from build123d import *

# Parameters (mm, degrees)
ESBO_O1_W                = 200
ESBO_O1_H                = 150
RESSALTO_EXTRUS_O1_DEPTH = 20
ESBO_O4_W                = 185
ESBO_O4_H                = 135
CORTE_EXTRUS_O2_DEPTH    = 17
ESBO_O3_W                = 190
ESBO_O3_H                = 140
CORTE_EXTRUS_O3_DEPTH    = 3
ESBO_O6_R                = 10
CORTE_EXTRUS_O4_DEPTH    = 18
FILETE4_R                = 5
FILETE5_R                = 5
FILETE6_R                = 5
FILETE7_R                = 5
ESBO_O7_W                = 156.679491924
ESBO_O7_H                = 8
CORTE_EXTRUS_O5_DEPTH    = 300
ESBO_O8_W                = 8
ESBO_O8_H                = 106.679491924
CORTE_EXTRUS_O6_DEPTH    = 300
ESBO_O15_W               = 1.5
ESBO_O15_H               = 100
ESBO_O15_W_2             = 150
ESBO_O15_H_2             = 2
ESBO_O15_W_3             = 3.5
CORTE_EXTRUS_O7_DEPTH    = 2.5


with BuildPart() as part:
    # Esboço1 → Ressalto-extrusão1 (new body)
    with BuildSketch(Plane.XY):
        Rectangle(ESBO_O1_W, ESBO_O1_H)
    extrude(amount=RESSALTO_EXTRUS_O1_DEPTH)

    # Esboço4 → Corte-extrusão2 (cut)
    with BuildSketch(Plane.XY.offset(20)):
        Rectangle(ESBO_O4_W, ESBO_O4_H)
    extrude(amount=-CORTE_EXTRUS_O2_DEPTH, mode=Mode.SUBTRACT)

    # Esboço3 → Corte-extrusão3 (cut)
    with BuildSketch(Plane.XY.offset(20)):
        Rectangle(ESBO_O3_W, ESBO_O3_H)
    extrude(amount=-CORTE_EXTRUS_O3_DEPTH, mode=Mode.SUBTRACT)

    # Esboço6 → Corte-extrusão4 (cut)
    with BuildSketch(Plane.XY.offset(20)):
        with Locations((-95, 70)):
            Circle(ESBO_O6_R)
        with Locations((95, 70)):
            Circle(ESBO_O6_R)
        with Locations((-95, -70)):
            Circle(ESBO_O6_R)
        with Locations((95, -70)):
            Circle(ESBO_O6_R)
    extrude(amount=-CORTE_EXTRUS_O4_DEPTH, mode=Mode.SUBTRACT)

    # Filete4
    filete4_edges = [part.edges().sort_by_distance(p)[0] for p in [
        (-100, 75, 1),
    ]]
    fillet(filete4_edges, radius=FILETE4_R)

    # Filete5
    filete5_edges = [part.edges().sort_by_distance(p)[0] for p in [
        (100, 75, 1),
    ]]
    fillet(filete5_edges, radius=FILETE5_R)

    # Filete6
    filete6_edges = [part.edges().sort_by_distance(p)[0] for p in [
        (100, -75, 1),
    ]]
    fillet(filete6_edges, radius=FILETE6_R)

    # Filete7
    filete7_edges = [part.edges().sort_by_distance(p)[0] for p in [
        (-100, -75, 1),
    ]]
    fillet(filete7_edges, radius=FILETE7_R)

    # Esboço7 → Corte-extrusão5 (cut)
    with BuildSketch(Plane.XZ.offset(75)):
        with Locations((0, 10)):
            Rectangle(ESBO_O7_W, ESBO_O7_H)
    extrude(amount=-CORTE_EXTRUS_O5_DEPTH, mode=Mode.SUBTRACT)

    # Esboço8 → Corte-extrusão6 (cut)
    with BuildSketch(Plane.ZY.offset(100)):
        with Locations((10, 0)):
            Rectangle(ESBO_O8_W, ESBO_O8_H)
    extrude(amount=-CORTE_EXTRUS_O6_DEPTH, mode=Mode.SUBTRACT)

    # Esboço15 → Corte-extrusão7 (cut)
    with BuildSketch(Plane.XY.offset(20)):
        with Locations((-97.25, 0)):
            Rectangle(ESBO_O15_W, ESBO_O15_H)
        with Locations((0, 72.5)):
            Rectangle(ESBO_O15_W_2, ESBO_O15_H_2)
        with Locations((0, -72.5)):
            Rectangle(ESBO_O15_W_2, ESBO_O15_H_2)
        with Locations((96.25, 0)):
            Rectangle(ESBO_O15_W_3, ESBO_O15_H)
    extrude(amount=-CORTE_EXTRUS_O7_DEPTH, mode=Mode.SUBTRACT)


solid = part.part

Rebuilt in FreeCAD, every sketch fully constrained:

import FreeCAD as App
import Part
import Sketcher
from FreeCAD import Vector
Q = App.Units.Quantity


def edges_at(feature, points):
    """Names of the edges that pass closest to the given points."""
    edges = feature.Shape.Edges
    near = lambda p: min(range(len(edges)), key=lambda i: edges[i].distToShape(Part.Vertex(*p))[0])
    return sorted({f"Edge{near(p) + 1}" for p in points})

doc = App.newDocument("Part")
body = doc.addObject("PartDesign::Body", "Body")

sketch1 = body.newObject("Sketcher::SketchObject", "Sketch")
sketch1.AttachmentSupport = (doc.getObject("XY_Plane"), [""])
sketch1.MapMode = "FlatFace"
sketch1.addGeometry(Part.LineSegment(Vector(-100, 75, 0), Vector(-100, -75, 0)), False)
sketch1.addGeometry(Part.LineSegment(Vector(-100, -75, 0), Vector(100, -75, 0)), False)
sketch1.addGeometry(Part.LineSegment(Vector(100, -75, 0), Vector(100, 75, 0)), False)
sketch1.addGeometry(Part.LineSegment(Vector(100, 75, 0), Vector(-100, 75, 0)), False)
sketch1.addConstraint(Sketcher.Constraint("Coincident", 0, 2, 1, 1))
sketch1.addConstraint(Sketcher.Constraint("Coincident", 1, 2, 2, 1))
sketch1.addConstraint(Sketcher.Constraint("Coincident", 2, 2, 3, 1))
sketch1.addConstraint(Sketcher.Constraint("Coincident", 3, 2, 0, 1))
sketch1.addConstraint(Sketcher.Constraint("Vertical", 0))
sketch1.addConstraint(Sketcher.Constraint("Horizontal", 1))
sketch1.addConstraint(Sketcher.Constraint("Vertical", 2))
sketch1.addConstraint(Sketcher.Constraint("Horizontal", 3))
sketch1.addConstraint(Sketcher.Constraint("Symmetric", 0, 2, 2, 2, -1, 1))
sketch1.addConstraint(Sketcher.Constraint("DistanceX", 1, 1, 1, 2, Q("200 mm")))
sketch1.addConstraint(Sketcher.Constraint("DistanceY", 0, 2, 0, 1, Q("150 mm")))
pad1 = body.newObject("PartDesign::Pad", "Pad")
pad1.Profile = sketch1
pad1.Length = 20

sketch2 = body.newObject("Sketcher::SketchObject", "Sketch001")
sketch2.AttachmentSupport = (doc.getObject("XY_Plane"), [""])
sketch2.MapMode = "FlatFace"
sketch2.AttachmentOffset = App.Placement(Vector(0, 0, 20), App.Rotation())
sketch2.addGeometry(Part.LineSegment(Vector(-92.5, 67.5, 0), Vector(-92.5, -67.5, 0)), False)
sketch2.addGeometry(Part.LineSegment(Vector(-92.5, -67.5, 0), Vector(92.5, -67.5, 0)), False)
sketch2.addGeometry(Part.LineSegment(Vector(92.5, -67.5, 0), Vector(92.5, 67.5, 0)), False)
sketch2.addGeometry(Part.LineSegment(Vector(92.5, 67.5, 0), Vector(-92.5, 67.5, 0)), False)
sketch2.addConstraint(Sketcher.Constraint("Coincident", 0, 2, 1, 1))
sketch2.addConstraint(Sketcher.Constraint("Coincident", 1, 2, 2, 1))
sketch2.addConstraint(Sketcher.Constraint("Coincident", 2, 2, 3, 1))
sketch2.addConstraint(Sketcher.Constraint("Coincident", 3, 2, 0, 1))
sketch2.addConstraint(Sketcher.Constraint("Vertical", 0))
sketch2.addConstraint(Sketcher.Constraint("Horizontal", 1))
sketch2.addConstraint(Sketcher.Constraint("Vertical", 2))
sketch2.addConstraint(Sketcher.Constraint("Horizontal", 3))
sketch2.addConstraint(Sketcher.Constraint("Symmetric", 0, 2, 2, 2, -1, 1))
sketch2.addConstraint(Sketcher.Constraint("DistanceX", 1, 1, 1, 2, Q("185 mm")))
sketch2.addConstraint(Sketcher.Constraint("DistanceY", 0, 2, 0, 1, Q("135 mm")))
pocket1 = body.newObject("PartDesign::Pocket", "Pocket")
pocket1.Profile = sketch2
pocket1.Length = 17

sketch3 = body.newObject("Sketcher::SketchObject", "Sketch002")
sketch3.AttachmentSupport = (doc.getObject("XY_Plane"), [""])
sketch3.MapMode = "FlatFace"
sketch3.AttachmentOffset = App.Placement(Vector(0, 0, 20), App.Rotation())
sketch3.addGeometry(Part.LineSegment(Vector(-95, 70, 0), Vector(-95, -70, 0)), False)
sketch3.addGeometry(Part.LineSegment(Vector(-95, -70, 0), Vector(95, -70, 0)), False)
sketch3.addGeometry(Part.LineSegment(Vector(95, -70, 0), Vector(95, 70, 0)), False)
sketch3.addGeometry(Part.LineSegment(Vector(95, 70, 0), Vector(-95, 70, 0)), False)
sketch3.addConstraint(Sketcher.Constraint("Coincident", 0, 2, 1, 1))
sketch3.addConstraint(Sketcher.Constraint("Coincident", 1, 2, 2, 1))
sketch3.addConstraint(Sketcher.Constraint("Coincident", 2, 2, 3, 1))
sketch3.addConstraint(Sketcher.Constraint("Coincident", 3, 2, 0, 1))
sketch3.addConstraint(Sketcher.Constraint("Vertical", 0))
sketch3.addConstraint(Sketcher.Constraint("Horizontal", 1))
sketch3.addConstraint(Sketcher.Constraint("Vertical", 2))
sketch3.addConstraint(Sketcher.Constraint("Horizontal", 3))
sketch3.addConstraint(Sketcher.Constraint("Symmetric", 0, 2, 2, 2, -1, 1))
sketch3.addConstraint(Sketcher.Constraint("DistanceX", 1, 1, 1, 2, Q("190 mm")))
sketch3.addConstraint(Sketcher.Constraint("DistanceY", 0, 2, 0, 1, Q("140 mm")))
pocket2 = body.newObject("PartDesign::Pocket", "Pocket001")
pocket2.Profile = sketch3
pocket2.Length = 3

sketch4 = body.newObject("Sketcher::SketchObject", "Sketch003")
sketch4.AttachmentSupport = (doc.getObject("XY_Plane"), [""])
sketch4.MapMode = "FlatFace"
sketch4.AttachmentOffset = App.Placement(Vector(0, 0, 20), App.Rotation())
sketch4.addGeometry(Part.Circle(Vector(-95, 70, 0), Vector(0, 0, 1), 10), False)
sketch4.addGeometry(Part.Circle(Vector(95, 70, 0), Vector(0, 0, 1), 10), False)
sketch4.addGeometry(Part.Circle(Vector(-95, -70, 0), Vector(0, 0, 1), 10), False)
sketch4.addGeometry(Part.Circle(Vector(95, -70, 0), Vector(0, 0, 1), 10), False)
sketch4.addConstraint(Sketcher.Constraint("Equal", 0, 1))
sketch4.addConstraint(Sketcher.Constraint("Equal", 1, 2))
sketch4.addConstraint(Sketcher.Constraint("Equal", 2, 3))
sketch4.addConstraint(Sketcher.Constraint("Symmetric", 1, 3, 2, 3, -1, 1))
sketch4.addConstraint(Sketcher.Constraint("Symmetric", 0, 3, 3, 3, -1, 1))
sketch4.addConstraint(Sketcher.Constraint("Symmetric", 0, 3, 1, 3, -2))
sketch4.addConstraint(Sketcher.Constraint("Diameter", 0, Q("20 mm")))
sketch4.addConstraint(Sketcher.Constraint("DistanceX", 0, 3, -1, 1, Q("95 mm")))
sketch4.addConstraint(Sketcher.Constraint("DistanceY", -1, 1, 0, 3, Q("70 mm")))
pocket3 = body.newObject("PartDesign::Pocket", "Pocket002")
pocket3.Profile = sketch4
pocket3.Length = 18
doc.recompute()

fillet = body.newObject("PartDesign::Fillet", "Fillet")
fillet.Base = (pocket3, edges_at(pocket3, [(-100, 75, 1)]))
fillet.Radius = 5
doc.recompute()

fillet2 = body.newObject("PartDesign::Fillet", "Fillet001")
fillet2.Base = (fillet, edges_at(fillet, [(100, 75, 1)]))
fillet2.Radius = 5
doc.recompute()

fillet3 = body.newObject("PartDesign::Fillet", "Fillet002")
fillet3.Base = (fillet2, edges_at(fillet2, [(100, -75, 1)]))
fillet3.Radius = 5
doc.recompute()

fillet4 = body.newObject("PartDesign::Fillet", "Fillet003")
fillet4.Base = (fillet3, edges_at(fillet3, [(-100, -75, 1)]))
fillet4.Radius = 5

sketch5 = body.newObject("Sketcher::SketchObject", "Sketch004")
sketch5.AttachmentSupport = (doc.getObject("XZ_Plane"), [""])
sketch5.MapMode = "FlatFace"
sketch5.AttachmentOffset = App.Placement(Vector(0, 0, 75), App.Rotation())
sketch5.addGeometry(Part.LineSegment(Vector(-78.339746, 14, 0), Vector(-78.339746, 6, 0)), False)
sketch5.addGeometry(Part.LineSegment(Vector(-78.339746, 6, 0), Vector(78.339746, 6, 0)), False)
sketch5.addGeometry(Part.LineSegment(Vector(78.339746, 6, 0), Vector(78.339746, 14, 0)), False)
sketch5.addGeometry(Part.LineSegment(Vector(78.339746, 14, 0), Vector(-78.339746, 14, 0)), False)
sketch5.addConstraint(Sketcher.Constraint("Coincident", 0, 2, 1, 1))
sketch5.addConstraint(Sketcher.Constraint("Coincident", 1, 2, 2, 1))
sketch5.addConstraint(Sketcher.Constraint("Coincident", 2, 2, 3, 1))
sketch5.addConstraint(Sketcher.Constraint("Coincident", 3, 2, 0, 1))
sketch5.addConstraint(Sketcher.Constraint("Vertical", 0))
sketch5.addConstraint(Sketcher.Constraint("Horizontal", 1))
sketch5.addConstraint(Sketcher.Constraint("Vertical", 2))
sketch5.addConstraint(Sketcher.Constraint("Horizontal", 3))
sketch5.addConstraint(Sketcher.Constraint("DistanceY", 0, 2, 0, 1, Q("8 mm")))
sketch5.addConstraint(Sketcher.Constraint("DistanceY", -1, 1, 0, 2, Q("6 mm")))
sketch5.addConstraint(Sketcher.Constraint("DistanceX", 1, 1, 1, 2, Q("156.679492 mm")))
sketch5.addConstraint(Sketcher.Constraint("DistanceX", 0, 2, -1, 1, Q("78.339746 mm")))
pocket4 = body.newObject("PartDesign::Pocket", "Pocket003")
pocket4.Profile = sketch5
pocket4.Length = 300

sketch6 = body.newObject("Sketcher::SketchObject", "Sketch005")
sketch6.AttachmentSupport = (doc.getObject("YZ_Plane"), [""])
sketch6.MapMode = "FlatFace"
sketch6.AttachmentOffset = App.Placement(Vector(0, 0, -100), App.Rotation())
sketch6.addGeometry(Part.LineSegment(Vector(53.339746, 6, 0), Vector(-53.339746, 6, 0)), False)
sketch6.addGeometry(Part.LineSegment(Vector(-53.339746, 6, 0), Vector(-53.339746, 14, 0)), False)
sketch6.addGeometry(Part.LineSegment(Vector(-53.339746, 14, 0), Vector(53.339746, 14, 0)), False)
sketch6.addGeometry(Part.LineSegment(Vector(53.339746, 14, 0), Vector(53.339746, 6, 0)), False)
sketch6.addConstraint(Sketcher.Constraint("Coincident", 0, 2, 1, 1))
sketch6.addConstraint(Sketcher.Constraint("Coincident", 1, 2, 2, 1))
sketch6.addConstraint(Sketcher.Constraint("Coincident", 2, 2, 3, 1))
sketch6.addConstraint(Sketcher.Constraint("Coincident", 3, 2, 0, 1))
sketch6.addConstraint(Sketcher.Constraint("Horizontal", 0))
sketch6.addConstraint(Sketcher.Constraint("Vertical", 1))
sketch6.addConstraint(Sketcher.Constraint("Horizontal", 2))
sketch6.addConstraint(Sketcher.Constraint("Vertical", 3))
sketch6.addConstraint(Sketcher.Constraint("DistanceY", 1, 1, 1, 2, Q("8 mm")))
sketch6.addConstraint(Sketcher.Constraint("DistanceY", -1, 1, 0, 2, Q("6 mm")))
sketch6.addConstraint(Sketcher.Constraint("DistanceX", 0, 2, 0, 1, Q("106.679492 mm")))
sketch6.addConstraint(Sketcher.Constraint("DistanceX", 0, 2, -1, 1, Q("53.339746 mm")))
pocket5 = body.newObject("PartDesign::Pocket", "Pocket004")
pocket5.Profile = sketch6
pocket5.Length = 300
pocket5.Reversed = True

sketch7 = body.newObject("Sketcher::SketchObject", "Sketch006")
sketch7.AttachmentSupport = (doc.getObject("XY_Plane"), [""])
sketch7.MapMode = "FlatFace"
sketch7.AttachmentOffset = App.Placement(Vector(0, 0, 20), App.Rotation())
sketch7.addGeometry(Part.LineSegment(Vector(-98, 50, 0), Vector(-98, -50, 0)), False)
sketch7.addGeometry(Part.LineSegment(Vector(-98, -50, 0), Vector(-96.5, -50, 0)), False)
sketch7.addGeometry(Part.LineSegment(Vector(-96.5, -50, 0), Vector(-96.5, 50, 0)), False)
sketch7.addGeometry(Part.LineSegment(Vector(-96.5, 50, 0), Vector(-98, 50, 0)), False)
sketch7.addGeometry(Part.LineSegment(Vector(-75, 73.5, 0), Vector(-75, 71.5, 0)), False)
sketch7.addGeometry(Part.LineSegment(Vector(-75, 71.5, 0), Vector(75, 71.5, 0)), False)
sketch7.addGeometry(Part.LineSegment(Vector(75, 71.5, 0), Vector(75, 73.5, 0)), False)
sketch7.addGeometry(Part.LineSegment(Vector(75, 73.5, 0), Vector(-75, 73.5, 0)), False)
sketch7.addGeometry(Part.LineSegment(Vector(-75, -71.5, 0), Vector(-75, -73.5, 0)), False)
sketch7.addGeometry(Part.LineSegment(Vector(-75, -73.5, 0), Vector(75, -73.5, 0)), False)
sketch7.addGeometry(Part.LineSegment(Vector(75, -73.5, 0), Vector(75, -71.5, 0)), False)
sketch7.addGeometry(Part.LineSegment(Vector(75, -71.5, 0), Vector(-75, -71.5, 0)), False)
sketch7.addGeometry(Part.LineSegment(Vector(94.5, 50, 0), Vector(94.5, -50, 0)), False)
sketch7.addGeometry(Part.LineSegment(Vector(94.5, -50, 0), Vector(98, -50, 0)), False)
sketch7.addGeometry(Part.LineSegment(Vector(98, -50, 0), Vector(98, 50, 0)), False)
sketch7.addGeometry(Part.LineSegment(Vector(98, 50, 0), Vector(94.5, 50, 0)), False)
sketch7.addConstraint(Sketcher.Constraint("Coincident", 0, 2, 1, 1))
sketch7.addConstraint(Sketcher.Constraint("Coincident", 1, 2, 2, 1))
sketch7.addConstraint(Sketcher.Constraint("Coincident", 2, 2, 3, 1))
sketch7.addConstraint(Sketcher.Constraint("Coincident", 3, 2, 0, 1))
sketch7.addConstraint(Sketcher.Constraint("Coincident", 4, 2, 5, 1))
sketch7.addConstraint(Sketcher.Constraint("Coincident", 5, 2, 6, 1))
sketch7.addConstraint(Sketcher.Constraint("Coincident", 6, 2, 7, 1))
sketch7.addConstraint(Sketcher.Constraint("Coincident", 7, 2, 4, 1))
sketch7.addConstraint(Sketcher.Constraint("Coincident", 8, 2, 9, 1))
sketch7.addConstraint(Sketcher.Constraint("Coincident", 9, 2, 10, 1))
sketch7.addConstraint(Sketcher.Constraint("Coincident", 10, 2, 11, 1))
sketch7.addConstraint(Sketcher.Constraint("Coincident", 11, 2, 8, 1))
sketch7.addConstraint(Sketcher.Constraint("Coincident", 12, 2, 13, 1))
sketch7.addConstraint(Sketcher.Constraint("Coincident", 13, 2, 14, 1))
sketch7.addConstraint(Sketcher.Constraint("Coincident", 14, 2, 15, 1))
sketch7.addConstraint(Sketcher.Constraint("Coincident", 15, 2, 12, 1))
sketch7.addConstraint(Sketcher.Constraint("Vertical", 0))
sketch7.addConstraint(Sketcher.Constraint("Horizontal", 1))
sketch7.addConstraint(Sketcher.Constraint("Vertical", 2))
sketch7.addConstraint(Sketcher.Constraint("Horizontal", 3))
sketch7.addConstraint(Sketcher.Constraint("Vertical", 4))
sketch7.addConstraint(Sketcher.Constraint("Horizontal", 5))
sketch7.addConstraint(Sketcher.Constraint("Vertical", 6))
sketch7.addConstraint(Sketcher.Constraint("Horizontal", 7))
sketch7.addConstraint(Sketcher.Constraint("Vertical", 8))
sketch7.addConstraint(Sketcher.Constraint("Horizontal", 9))
sketch7.addConstraint(Sketcher.Constraint("Vertical", 10))
sketch7.addConstraint(Sketcher.Constraint("Horizontal", 11))
sketch7.addConstraint(Sketcher.Constraint("Vertical", 12))
sketch7.addConstraint(Sketcher.Constraint("Horizontal", 13))
sketch7.addConstraint(Sketcher.Constraint("Vertical", 14))
sketch7.addConstraint(Sketcher.Constraint("Horizontal", 15))
sketch7.addConstraint(Sketcher.Constraint("Symmetric", 6, 2, 8, 2, -1, 1))
sketch7.addConstraint(Sketcher.Constraint("Symmetric", 4, 2, 10, 2, -1, 1))
sketch7.addConstraint(Sketcher.Constraint("Symmetric", 3, 2, 13, 2, -1, 1))
sketch7.addConstraint(Sketcher.Constraint("Horizontal", 1, 2, 12, 2))
sketch7.addConstraint(Sketcher.Constraint("Horizontal", 3, 2, 14, 2))
sketch7.addConstraint(Sketcher.Constraint("Vertical", 7, 2, 8, 2))
sketch7.addConstraint(Sketcher.Constraint("DistanceX", 5, 1, 5, 2, Q("150 mm")))
sketch7.addConstraint(Sketcher.Constraint("DistanceY", 0, 2, 0, 1, Q("100 mm")))
sketch7.addConstraint(Sketcher.Constraint("DistanceY", 4, 2, 4, 1, Q("2 mm")))
sketch7.addConstraint(Sketcher.Constraint("DistanceX", 1, 1, 1, 2, Q("1.5 mm")))
sketch7.addConstraint(Sketcher.Constraint("DistanceX", 13, 1, 13, 2, Q("3.5 mm")))
sketch7.addConstraint(Sketcher.Constraint("DistanceX", 0, 2, -1, 1, Q("98 mm")))
sketch7.addConstraint(Sketcher.Constraint("DistanceY", 8, 2, 4, 2, Q("145 mm")))
pocket6 = body.newObject("PartDesign::Pocket", "Pocket005")
pocket6.Profile = sketch7
pocket6.Length = 2.5

doc.recompute()
